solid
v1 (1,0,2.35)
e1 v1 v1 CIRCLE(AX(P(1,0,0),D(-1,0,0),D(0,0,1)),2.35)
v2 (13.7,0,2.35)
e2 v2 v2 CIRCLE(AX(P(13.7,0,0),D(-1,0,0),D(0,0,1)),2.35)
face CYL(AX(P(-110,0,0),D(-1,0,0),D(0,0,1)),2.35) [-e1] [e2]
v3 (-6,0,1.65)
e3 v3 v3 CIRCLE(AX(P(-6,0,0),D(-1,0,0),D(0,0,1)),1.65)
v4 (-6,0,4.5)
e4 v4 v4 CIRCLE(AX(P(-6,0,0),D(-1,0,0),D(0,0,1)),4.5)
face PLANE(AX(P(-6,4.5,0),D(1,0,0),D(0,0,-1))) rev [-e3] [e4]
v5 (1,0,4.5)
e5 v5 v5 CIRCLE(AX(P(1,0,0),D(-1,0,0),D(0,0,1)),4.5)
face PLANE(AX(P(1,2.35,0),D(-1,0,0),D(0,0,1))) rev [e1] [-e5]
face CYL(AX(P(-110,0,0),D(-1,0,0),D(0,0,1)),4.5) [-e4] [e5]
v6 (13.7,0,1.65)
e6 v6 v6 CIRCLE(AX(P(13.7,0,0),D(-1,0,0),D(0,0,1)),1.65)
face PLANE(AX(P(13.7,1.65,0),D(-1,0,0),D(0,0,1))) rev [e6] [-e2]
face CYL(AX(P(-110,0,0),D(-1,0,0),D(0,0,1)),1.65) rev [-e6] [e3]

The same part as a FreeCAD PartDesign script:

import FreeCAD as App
import Part
import Sketcher
from FreeCAD import Vector
Q = App.Units.Quantity


def add_polygon(sketch, points):
    """Adds a closed chain of lines whose ends are joined by coincident constraints."""
    first, n = sketch.GeometryCount, len(points)
    for a, b in zip(points, points[1:] + points[:1]):
        sketch.addGeometry(Part.LineSegment(App.Vector(*a, 0), App.Vector(*b, 0)), False)
    for i in range(n):
        sketch.addConstraint(Sketcher.Constraint("Coincident", first + i, 2, first + (i + 1) % n, 1))

doc = App.newDocument("Part")
body = doc.addObject("PartDesign::Body", "Body")

sketch1 = body.newObject("Sketcher::SketchObject", "Sketch")
sketch1.AttachmentSupport = (doc.getObject("XY_Plane"), [""])
sketch1.MapMode = "FlatFace"
add_polygon(sketch1, [(-6, 1.65), (13.7, 1.65), (13.7, 2.35), (1, 2.35), (1, 4.5), (-6, 4.5)])
sketch1.addConstraint([
    Sketcher.Constraint("Horizontal", 0),
    Sketcher.Constraint("Vertical", 1),
    Sketcher.Constraint("Horizontal", 2),
    Sketcher.Constraint("Vertical", 3),
    Sketcher.Constraint("Horizontal", 4),
    Sketcher.Constraint("Vertical", 5),
    Sketcher.Constraint("DistanceX", 4, 2, 4, 1, Q("7 mm")),
    Sketcher.Constraint("DistanceX", 0, 1, 0, 2, Q("19.7 mm")),
    Sketcher.Constraint("DistanceY", 1, 1, 1, 2, Q("0.7 mm")),
    Sketcher.Constraint("DistanceX", -1, 1, 2, 2, Q("1 mm")),
    Sketcher.Constraint("DistanceY", 3, 1, 3, 2, Q("2.15 mm")),
    Sketcher.Constraint("DistanceY", -1, 1, 3, 2, Q("4.5 mm")),
])
revolution = body.newObject("PartDesign::Revolution", "Revolution")
revolution.Profile = sketch1
revolution.ReferenceAxis = (sketch1, ["H_Axis"])
revolution.Angle = 360

doc.recompute()
